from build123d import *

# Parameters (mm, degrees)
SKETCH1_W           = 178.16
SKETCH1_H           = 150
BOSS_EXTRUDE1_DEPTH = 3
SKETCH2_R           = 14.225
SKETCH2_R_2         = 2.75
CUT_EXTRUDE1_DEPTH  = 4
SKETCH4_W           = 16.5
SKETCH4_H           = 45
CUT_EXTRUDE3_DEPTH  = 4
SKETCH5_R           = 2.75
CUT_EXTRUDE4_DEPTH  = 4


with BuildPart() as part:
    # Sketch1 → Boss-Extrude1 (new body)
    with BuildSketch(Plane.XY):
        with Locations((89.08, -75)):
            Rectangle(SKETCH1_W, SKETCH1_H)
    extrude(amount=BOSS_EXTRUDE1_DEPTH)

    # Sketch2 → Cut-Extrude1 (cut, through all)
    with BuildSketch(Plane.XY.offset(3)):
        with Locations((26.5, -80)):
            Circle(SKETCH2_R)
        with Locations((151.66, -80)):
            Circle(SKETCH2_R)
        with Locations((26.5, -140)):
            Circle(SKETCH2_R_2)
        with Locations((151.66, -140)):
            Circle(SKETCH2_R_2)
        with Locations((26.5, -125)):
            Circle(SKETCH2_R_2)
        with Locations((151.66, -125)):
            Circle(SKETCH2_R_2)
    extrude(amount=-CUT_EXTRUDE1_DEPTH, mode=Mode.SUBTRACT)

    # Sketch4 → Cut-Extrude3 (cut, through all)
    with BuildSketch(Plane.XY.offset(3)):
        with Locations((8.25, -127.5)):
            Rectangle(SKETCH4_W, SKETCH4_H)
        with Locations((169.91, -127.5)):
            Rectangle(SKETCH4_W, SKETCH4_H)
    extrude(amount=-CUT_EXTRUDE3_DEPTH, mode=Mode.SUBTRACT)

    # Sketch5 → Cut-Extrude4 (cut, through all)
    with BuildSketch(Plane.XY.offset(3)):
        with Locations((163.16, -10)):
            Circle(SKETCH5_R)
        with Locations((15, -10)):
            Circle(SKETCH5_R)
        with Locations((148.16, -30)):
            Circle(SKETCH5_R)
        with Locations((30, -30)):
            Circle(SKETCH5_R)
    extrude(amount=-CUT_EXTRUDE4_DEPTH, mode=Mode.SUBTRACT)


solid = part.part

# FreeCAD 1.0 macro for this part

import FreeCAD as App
import Part
import Sketcher
Q = App.Units.Quantity


def add_polygon(sketch, points):
    """Adds a closed chain of lines whose ends are joined by coincident constraints."""
    first, n = sketch.GeometryCount, len(points)
    for a, b in zip(points, points[1:] + points[:1]):
        sketch.addGeometry(Part.LineSegment(App.Vector(*a, 0), App.Vector(*b, 0)), False)
    for i in range(n):
        sketch.addConstraint(Sketcher.Constraint("Coincident", first + i, 2, first + (i + 1) % n, 1))

doc = App.newDocument("Part")
params = doc.addObject("Spreadsheet::Sheet", "Params")
for row, (alias, value) in enumerate([
    ("sketch1_height", "150 mm"),
    ("sketch1_width", "178.16 mm"),
    ("pad1_length", "3 mm"),
    ("sketch2_diameter", "5.5 mm"),
    ("sketch2_diameter2", "28.45 mm"),
    ("sketch3_height", "45 mm"),
    ("sketch3_width", "16.5 mm"),
    ("sketch4_diameter", "5.5 mm"),
], start=1):
    params.set(f"A{row}", alias)
    params.set(f"B{row}", "=" + value)
    params.setAlias(f"B{row}", alias)

body = doc.addObject("PartDesign::Body", "Body")

# Sketch on XY plane
sketch1 = body.newObject("Sketcher::SketchObject", "Sketch")
sketch1.AttachmentSupport = (doc.getObject("XY_Plane"), [""])
sketch1.MapMode = "FlatFace"
add_polygon(sketch1, [(0, 0), (0, -150), (178, -150), (178, 0)])  # lines 0-3
sketch1.addConstraint([
    Sketcher.Constraint("Vertical", 0),
    Sketcher.Constraint("Horizontal", 1),
    Sketcher.Constraint("Vertical", 2),
    Sketcher.Constraint("Horizontal", 3),
    Sketcher.Constraint("Coincident", 3, 2, -1, 1),
    Sketcher.Constraint("DistanceY", 0, 2, 0, 1, Q("150 mm")),
    Sketcher.Constraint("DistanceX", 1, 1, 1, 2, Q("178.16 mm")),
])
sketch1.setExpression("Constraints[9]", "Params.sketch1_height")
sketch1.setExpression("Constraints[10]", "Params.sketch1_width")
pad1 = body.newObject("PartDesign::Pad", "Pad")
pad1.Profile = sketch1
pad1.setExpression("Length", "Params.pad1_length")

# Sketch on XY plane
sketch2 = body.newObject("Sketcher::SketchObject", "Sketch001")
sketch2.AttachmentSupport = (doc.getObject("XY_Plane"), [""])
sketch2.MapMode = "FlatFace"
sketch2.AttachmentOffset = App.Placement(App.Vector(0, 0, 3), App.Rotation())
sketch2.addGeometry([
    Part.Circle(App.Vector(26.5, -80, 0), App.Vector(0, 0, 1), 14.2),  # 0
    Part.Circle(App.Vector(151.7, -80, 0), App.Vector(0, 0, 1), 14.2),  # 1
    Part.Circle(App.Vector(26.5, -140, 0), App.Vector(0, 0, 1), 2.8),  # 2
    Part.Circle(App.Vector(151.7, -140, 0), App.Vector(0, 0, 1), 2.8),  # 3
    Part.Circle(App.Vector(26.5, -125, 0), App.Vector(0, 0, 1), 2.8),  # 4
    Part.Circle(App.Vector(151.7, -125, 0), App.Vector(0, 0, 1), 2.8),  # 5
], False)
sketch2.addConstraint([
    Sketcher.Constraint("Equal", 0, 1),
    Sketcher.Constraint("Equal", 2, 3),
    Sketcher.Constraint("Equal", 3, 4),
    Sketcher.Constraint("Equal", 4, 5),
    Sketcher.Constraint("Horizontal", 0, 3, 1, 3),
    Sketcher.Constraint("Horizontal", 2, 3, 3, 3),
    Sketcher.Constraint("Horizontal", 4, 3, 5, 3),
    Sketcher.Constraint("Vertical", 0, 3, 2, 3),
    Sketcher.Constraint("Vertical", 1, 3, 3, 3),
    Sketcher.Constraint("Vertical", 2, 3, 4, 3),
    Sketcher.Constraint("Vertical", 3, 3, 5, 3),
    Sketcher.Constraint("Diameter", 2, Q("5.5 mm")),
    Sketcher.Constraint("Diameter", 0, Q("28.45 mm")),
    Sketcher.Constraint("DistanceY", 0, 3, -1, 1, Q("80 mm")),
    Sketcher.Constraint("DistanceY", 2, 3, -1, 1, Q("140 mm")),
    Sketcher.Constraint("DistanceY", 4, 3, -1, 1, Q("125 mm")),
    Sketcher.Constraint("DistanceX", -1, 1, 0, 3, Q("26.5 mm")),
    Sketcher.Constraint("DistanceX", -1, 1, 1, 3, Q("151.66 mm")),
])
sketch2.setExpression("Constraints[11]", "Params.sketch2_diameter")
sketch2.setExpression("Constraints[12]", "Params.sketch2_diameter2")
pocket1 = body.newObject("PartDesign::Pocket", "Pocket")
pocket1.Profile = sketch2
pocket1.Type = "ThroughAll"

# Sketch on XY plane
sketch3 = body.newObject("Sketcher::SketchObject", "Sketch002")
sketch3.AttachmentSupport = (doc.getObject("XY_Plane"), [""])
sketch3.MapMode = "FlatFace"
sketch3.AttachmentOffset = App.Placement(App.Vector(0, 0, 3), App.Rotation())
add_polygon(sketch3, [(0, -105), (0, -150), (16, -150), (16, -105)])  # lines 0-3
add_polygon(sketch3, [(162, -105), (162, -150), (178, -150), (178, -105)])  # lines 4-7
sketch3.addConstraint([
    Sketcher.Constraint("Vertical", 0),
    Sketcher.Constraint("Horizontal", 1),
    Sketcher.Constraint("Vertical", 2),
    Sketcher.Constraint("Horizontal", 3),
    Sketcher.Constraint("Vertical", 4),
    Sketcher.Constraint("Horizontal", 5),
    Sketcher.Constraint("Vertical", 6),
    Sketcher.Constraint("Horizontal", 7),
    Sketcher.Constraint("PointOnObject", 0, 2, -2),
    Sketcher.Constraint("Horizontal", 1, 2, 4, 2),
    Sketcher.Constraint("Horizontal", 3, 2, 6, 2),
    Sketcher.Constraint("Equal", 3, 5),
    Sketcher.Constraint("DistanceY", 0, 2, 0, 1, Q("45 mm")),
    Sketcher.Constraint("DistanceX", 1, 1, 1, 2, Q("16.5 mm")),
    Sketcher.Constraint("DistanceY", 0, 2, -1, 1, Q("150 mm")),
    Sketcher.Constraint("DistanceX", -1, 1, 4, 2, Q("161.66 mm")),
])
sketch3.setExpression("Constraints[20]", "Params.sketch3_height")
sketch3.setExpression("Constraints[21]", "Params.sketch3_width")
pocket2 = body.newObject("PartDesign::Pocket", "Pocket001")
pocket2.Profile = sketch3
pocket2.Type = "ThroughAll"

# Sketch on XY plane
sketch4 = body.newObject("Sketcher::SketchObject", "Sketch003")
sketch4.AttachmentSupport = (doc.getObject("XY_Plane"), [""])
sketch4.MapMode = "FlatFace"
sketch4.AttachmentOffset = App.Placement(App.Vector(0, 0, 3), App.Rotation())
sketch4.addGeometry([
    Part.Circle(App.Vector(163.2, -10, 0), App.Vector(0, 0, 1), 2.8),
    Part.Circle(App.Vector(15, -10, 0), App.Vector(0, 0, 1), 2.8),
    Part.Circle(App.Vector(148.2, -30, 0), App.Vector(0, 0, 1), 2.8),
    Part.Circle(App.Vector(30, -30, 0), App.Vector(0, 0, 1), 2.8),
], False)
sketch4.addConstraint([
    Sketcher.Constraint("Equal", 0, 1),
    Sketcher.Constraint("Equal", 1, 2),
    Sketcher.Constraint("Equal", 2, 3),
    Sketcher.Constraint("Horizontal", 0, 3, 1, 3),
    Sketcher.Constraint("Horizontal", 2, 3, 3, 3),
    Sketcher.Constraint("Diameter", 0, Q("5.5 mm")),
    Sketcher.Constraint("DistanceY", 0, 3, -1, 1, Q("10 mm")),
    Sketcher.Constraint("DistanceX", -1, 1, 1, 3, Q("15 mm")),
    Sketcher.Constraint("DistanceY", 2, 3, -1, 1, Q("30 mm")),
    Sketcher.Constraint("DistanceX", -1, 1, 3, 3, Q("30 mm")),
    Sketcher.Constraint("DistanceX", 2, 3, 0, 3, Q("15 mm")),
    Sketcher.Constraint("DistanceX", -1, 1, 0, 3, Q("163.16 mm")),
])
sketch4.setExpression("Constraints[5]", "Params.sketch4_diameter")
pocket3 = body.newObject("PartDesign::Pocket", "Pocket002")
pocket3.Profile = sketch4
pocket3.Type = "ThroughAll"

doc.recompute()
